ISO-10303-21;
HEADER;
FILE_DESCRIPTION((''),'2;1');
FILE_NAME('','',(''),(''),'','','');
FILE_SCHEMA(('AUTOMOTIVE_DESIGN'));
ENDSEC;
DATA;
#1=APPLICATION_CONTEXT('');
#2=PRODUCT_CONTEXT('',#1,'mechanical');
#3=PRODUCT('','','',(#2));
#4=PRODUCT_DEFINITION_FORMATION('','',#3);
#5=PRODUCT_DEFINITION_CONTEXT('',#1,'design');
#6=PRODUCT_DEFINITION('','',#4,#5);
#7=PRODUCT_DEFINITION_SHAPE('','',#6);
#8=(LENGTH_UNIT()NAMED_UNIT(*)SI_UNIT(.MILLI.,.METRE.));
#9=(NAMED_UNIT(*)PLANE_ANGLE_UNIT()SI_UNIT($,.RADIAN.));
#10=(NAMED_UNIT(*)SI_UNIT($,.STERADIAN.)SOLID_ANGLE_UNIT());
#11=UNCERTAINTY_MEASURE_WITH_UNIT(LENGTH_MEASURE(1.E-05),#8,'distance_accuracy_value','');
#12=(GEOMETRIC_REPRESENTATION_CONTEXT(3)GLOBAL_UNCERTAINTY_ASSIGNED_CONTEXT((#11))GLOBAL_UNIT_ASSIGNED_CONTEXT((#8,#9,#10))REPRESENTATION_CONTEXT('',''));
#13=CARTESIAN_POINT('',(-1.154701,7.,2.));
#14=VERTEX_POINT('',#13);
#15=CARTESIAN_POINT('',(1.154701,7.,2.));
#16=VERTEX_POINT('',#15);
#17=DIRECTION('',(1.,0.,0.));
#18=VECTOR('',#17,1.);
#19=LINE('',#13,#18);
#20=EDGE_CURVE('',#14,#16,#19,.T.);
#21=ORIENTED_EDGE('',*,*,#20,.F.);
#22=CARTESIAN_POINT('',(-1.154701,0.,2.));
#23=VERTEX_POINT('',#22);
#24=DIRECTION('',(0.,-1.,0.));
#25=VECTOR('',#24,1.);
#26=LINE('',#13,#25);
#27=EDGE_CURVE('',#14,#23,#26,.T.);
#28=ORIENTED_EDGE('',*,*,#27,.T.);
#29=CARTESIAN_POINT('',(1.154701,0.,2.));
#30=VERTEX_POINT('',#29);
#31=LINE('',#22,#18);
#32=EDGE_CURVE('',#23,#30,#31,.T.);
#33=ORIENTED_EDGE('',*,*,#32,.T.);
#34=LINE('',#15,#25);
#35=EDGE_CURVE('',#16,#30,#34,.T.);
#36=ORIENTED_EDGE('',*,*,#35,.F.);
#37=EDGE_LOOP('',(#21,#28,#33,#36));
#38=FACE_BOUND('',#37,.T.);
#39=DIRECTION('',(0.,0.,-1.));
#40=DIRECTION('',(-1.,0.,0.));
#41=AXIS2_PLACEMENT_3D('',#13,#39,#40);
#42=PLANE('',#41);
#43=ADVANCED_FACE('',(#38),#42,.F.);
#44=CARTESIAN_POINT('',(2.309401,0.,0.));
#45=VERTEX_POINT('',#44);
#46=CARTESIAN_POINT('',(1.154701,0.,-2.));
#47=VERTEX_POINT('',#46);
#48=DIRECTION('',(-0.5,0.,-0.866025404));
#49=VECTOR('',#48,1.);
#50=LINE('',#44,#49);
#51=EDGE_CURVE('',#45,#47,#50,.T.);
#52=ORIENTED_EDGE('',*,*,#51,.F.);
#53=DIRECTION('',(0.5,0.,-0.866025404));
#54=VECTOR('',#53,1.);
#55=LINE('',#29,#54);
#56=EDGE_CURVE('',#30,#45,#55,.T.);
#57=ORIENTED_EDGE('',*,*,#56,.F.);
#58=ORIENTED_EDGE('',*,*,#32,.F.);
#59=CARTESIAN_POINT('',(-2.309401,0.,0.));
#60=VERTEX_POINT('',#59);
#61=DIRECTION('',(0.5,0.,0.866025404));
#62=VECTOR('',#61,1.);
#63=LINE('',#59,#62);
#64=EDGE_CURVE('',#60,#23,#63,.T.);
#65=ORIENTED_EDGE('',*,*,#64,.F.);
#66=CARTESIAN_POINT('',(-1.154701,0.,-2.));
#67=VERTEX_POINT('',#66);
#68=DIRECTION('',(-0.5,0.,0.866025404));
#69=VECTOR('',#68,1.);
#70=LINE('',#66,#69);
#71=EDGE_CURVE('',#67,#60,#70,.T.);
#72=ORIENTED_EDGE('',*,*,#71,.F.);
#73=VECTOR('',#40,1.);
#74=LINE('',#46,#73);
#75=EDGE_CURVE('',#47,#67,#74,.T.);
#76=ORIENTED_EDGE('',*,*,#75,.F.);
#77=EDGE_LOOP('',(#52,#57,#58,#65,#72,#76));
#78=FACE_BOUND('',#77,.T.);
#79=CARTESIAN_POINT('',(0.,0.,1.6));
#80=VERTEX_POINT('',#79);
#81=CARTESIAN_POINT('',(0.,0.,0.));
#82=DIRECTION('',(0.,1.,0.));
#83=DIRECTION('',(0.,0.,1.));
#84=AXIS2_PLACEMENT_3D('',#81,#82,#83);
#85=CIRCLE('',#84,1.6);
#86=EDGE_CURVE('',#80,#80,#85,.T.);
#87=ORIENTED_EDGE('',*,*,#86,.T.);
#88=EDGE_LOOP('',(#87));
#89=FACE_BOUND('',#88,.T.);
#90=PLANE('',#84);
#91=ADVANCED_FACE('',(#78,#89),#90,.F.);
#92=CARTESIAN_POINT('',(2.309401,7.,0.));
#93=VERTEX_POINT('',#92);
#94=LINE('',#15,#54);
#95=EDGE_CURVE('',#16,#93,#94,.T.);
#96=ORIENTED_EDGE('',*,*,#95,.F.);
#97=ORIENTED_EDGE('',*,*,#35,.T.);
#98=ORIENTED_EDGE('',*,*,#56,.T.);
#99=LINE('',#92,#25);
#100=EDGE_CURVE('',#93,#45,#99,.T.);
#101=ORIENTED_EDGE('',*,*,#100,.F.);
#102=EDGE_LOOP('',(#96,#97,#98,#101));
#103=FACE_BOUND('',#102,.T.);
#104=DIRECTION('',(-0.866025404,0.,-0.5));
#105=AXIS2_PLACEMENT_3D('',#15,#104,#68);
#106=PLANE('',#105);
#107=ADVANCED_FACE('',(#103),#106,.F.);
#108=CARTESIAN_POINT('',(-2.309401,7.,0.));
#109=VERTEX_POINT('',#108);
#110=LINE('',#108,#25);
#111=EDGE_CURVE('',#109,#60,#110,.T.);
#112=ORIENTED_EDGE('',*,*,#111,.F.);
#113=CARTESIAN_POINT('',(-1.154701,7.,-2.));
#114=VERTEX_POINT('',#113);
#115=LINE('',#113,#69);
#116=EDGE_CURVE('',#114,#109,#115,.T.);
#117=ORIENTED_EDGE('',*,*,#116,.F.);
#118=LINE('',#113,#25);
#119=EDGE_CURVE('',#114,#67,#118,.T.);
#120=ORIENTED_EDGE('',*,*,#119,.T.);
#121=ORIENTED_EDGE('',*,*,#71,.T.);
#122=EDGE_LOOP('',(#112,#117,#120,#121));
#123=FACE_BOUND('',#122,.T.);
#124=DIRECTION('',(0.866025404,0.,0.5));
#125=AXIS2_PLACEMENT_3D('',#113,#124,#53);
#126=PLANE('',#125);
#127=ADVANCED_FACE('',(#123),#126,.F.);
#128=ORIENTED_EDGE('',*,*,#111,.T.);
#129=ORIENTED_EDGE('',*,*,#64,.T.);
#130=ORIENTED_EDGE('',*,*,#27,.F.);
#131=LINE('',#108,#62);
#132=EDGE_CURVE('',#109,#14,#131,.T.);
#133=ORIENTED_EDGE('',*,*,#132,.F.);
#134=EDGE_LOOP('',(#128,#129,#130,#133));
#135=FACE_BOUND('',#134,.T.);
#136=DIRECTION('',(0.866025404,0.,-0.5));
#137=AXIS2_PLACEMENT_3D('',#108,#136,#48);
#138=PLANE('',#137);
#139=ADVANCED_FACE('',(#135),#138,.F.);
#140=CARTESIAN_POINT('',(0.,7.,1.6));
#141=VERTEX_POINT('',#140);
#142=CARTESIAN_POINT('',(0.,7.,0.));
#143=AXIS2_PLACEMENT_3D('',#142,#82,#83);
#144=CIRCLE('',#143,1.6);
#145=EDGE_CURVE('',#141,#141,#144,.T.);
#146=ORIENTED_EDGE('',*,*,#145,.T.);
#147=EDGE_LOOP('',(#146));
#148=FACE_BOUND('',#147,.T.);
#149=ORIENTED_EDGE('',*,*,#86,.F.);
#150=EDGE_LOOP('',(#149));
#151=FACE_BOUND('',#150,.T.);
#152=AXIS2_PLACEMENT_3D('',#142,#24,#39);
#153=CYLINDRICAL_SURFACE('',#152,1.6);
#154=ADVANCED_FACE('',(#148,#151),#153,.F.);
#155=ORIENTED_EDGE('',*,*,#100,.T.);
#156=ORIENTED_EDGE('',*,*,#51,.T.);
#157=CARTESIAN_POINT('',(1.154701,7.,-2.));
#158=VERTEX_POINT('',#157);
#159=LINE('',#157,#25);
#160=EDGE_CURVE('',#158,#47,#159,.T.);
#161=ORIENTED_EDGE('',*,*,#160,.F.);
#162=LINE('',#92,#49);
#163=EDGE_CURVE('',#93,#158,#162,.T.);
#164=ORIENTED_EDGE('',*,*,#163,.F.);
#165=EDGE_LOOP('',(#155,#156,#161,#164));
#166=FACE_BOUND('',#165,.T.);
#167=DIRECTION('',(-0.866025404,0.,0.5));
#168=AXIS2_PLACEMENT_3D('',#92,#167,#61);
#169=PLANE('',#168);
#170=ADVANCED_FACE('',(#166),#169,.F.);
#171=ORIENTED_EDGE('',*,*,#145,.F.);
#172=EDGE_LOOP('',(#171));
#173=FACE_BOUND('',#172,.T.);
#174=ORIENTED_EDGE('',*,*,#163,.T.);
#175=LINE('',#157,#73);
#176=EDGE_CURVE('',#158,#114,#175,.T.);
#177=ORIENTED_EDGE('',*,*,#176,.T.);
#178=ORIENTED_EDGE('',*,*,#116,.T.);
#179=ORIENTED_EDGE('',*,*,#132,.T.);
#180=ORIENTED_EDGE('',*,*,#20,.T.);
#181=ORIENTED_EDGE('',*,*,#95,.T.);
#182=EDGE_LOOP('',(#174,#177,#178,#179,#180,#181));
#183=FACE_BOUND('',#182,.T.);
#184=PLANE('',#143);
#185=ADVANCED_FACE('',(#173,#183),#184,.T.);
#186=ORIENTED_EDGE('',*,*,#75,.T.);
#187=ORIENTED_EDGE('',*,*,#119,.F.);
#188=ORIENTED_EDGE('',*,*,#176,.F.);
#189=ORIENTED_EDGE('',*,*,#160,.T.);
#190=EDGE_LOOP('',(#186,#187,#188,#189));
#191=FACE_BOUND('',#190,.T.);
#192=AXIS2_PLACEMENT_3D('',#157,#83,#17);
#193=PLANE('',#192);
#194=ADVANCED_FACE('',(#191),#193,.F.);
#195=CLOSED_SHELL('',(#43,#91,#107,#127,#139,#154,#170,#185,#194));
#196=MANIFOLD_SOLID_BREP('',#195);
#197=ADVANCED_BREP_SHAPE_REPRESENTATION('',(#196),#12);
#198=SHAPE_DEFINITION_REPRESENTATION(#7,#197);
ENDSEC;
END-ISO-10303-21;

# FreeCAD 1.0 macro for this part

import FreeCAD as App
import Part
import Sketcher

V = App.Vector
Q = App.Units.Quantity

doc = App.newDocument("Part")
params = doc.addObject("Spreadsheet::Sheet", "Params")
for row, (alias, value) in enumerate([
    ("sketch1_diameter", "3.2 mm"),
    ("pad1_length", "7 mm"),
], start=1):
    params.set(f"A{row}", alias)
    params.set(f"B{row}", "=" + value)
    params.setAlias(f"B{row}", alias)

body = doc.addObject("PartDesign::Body", "Body")

sketch1 = doc.addObject("Sketcher::SketchObject", "Sketch")
body.addObject(sketch1)
sketch1.AttachmentSupport = (doc.XZ_Plane, [""])
sketch1.MapMode = "FlatFace"
sketch1.addGeometry(Part.LineSegment(V(2.3, 0, 0), V(1.2, -2, 0)), False)
sketch1.addGeometry(Part.LineSegment(V(1.2, -2, 0), V(-1.2, -2, 0)), False)
sketch1.addGeometry(Part.LineSegment(V(-1.2, -2, 0), V(-2.3, 0, 0)), False)
sketch1.addGeometry(Part.LineSegment(V(-2.3, 0, 0), V(-1.2, 2, 0)), False)
sketch1.addGeometry(Part.LineSegment(V(-1.2, 2, 0), V(1.2, 2, 0)), False)
sketch1.addGeometry(Part.LineSegment(V(1.2, 2, 0), V(2.3, 0, 0)), False)
sketch1.addGeometry(Part.Circle(V(0, 0, 0), V(0, 0, 1), 1.6), False)
sketch1.addConstraint(Sketcher.Constraint("Coincident", 0, 2, 1, 1))
sketch1.addConstraint(Sketcher.Constraint("Coincident", 1, 2, 2, 1))
sketch1.addConstraint(Sketcher.Constraint("Coincident", 2, 2, 3, 1))
sketch1.addConstraint(Sketcher.Constraint("Coincident", 3, 2, 4, 1))
sketch1.addConstraint(Sketcher.Constraint("Coincident", 4, 2, 5, 1))
sketch1.addConstraint(Sketcher.Constraint("Coincident", 5, 2, 0, 1))
sketch1.addConstraint(Sketcher.Constraint("Horizontal", 1))
sketch1.addConstraint(Sketcher.Constraint("Horizontal", 4))
sketch1.addConstraint(Sketcher.Constraint("Coincident", 6, 3, -1, 1))
sketch1.addConstraint(Sketcher.Constraint("Symmetric", 0, 2, 3, 2, -1, 1))
sketch1.addConstraint(Sketcher.Constraint("Symmetric", 2, 2, 5, 2, -1, 1))
sketch1.addConstraint(Sketcher.Constraint("PointOnObject", 2, 2, -1))
sketch1.addConstraint(Sketcher.Constraint("Parallel", 2, 5))
sketch1.addConstraint(Sketcher.Constraint("Vertical", 1, 2, 3, 2))
sketch1.addConstraint(Sketcher.Constraint("Diameter", 6, 3.2))
sketch1.addConstraint(Sketcher.Constraint("Angle", 0, Q("-120 deg")))
sketch1.addConstraint(Sketcher.Constraint("DistanceY", 0, 2, -1, 1, 2.0))
sketch1.addConstraint(Sketcher.Constraint("DistanceX", 1, 2, 1, 1, 2.309401))
sketch1.setExpression("Constraints[14]", "Params.sketch1_diameter")
pad1 = doc.addObject("PartDesign::Pad", "Pad")
body.addObject(pad1)
pad1.Profile = sketch1
pad1.setExpression("Length", "Params.pad1_length")
pad1.Reversed = True

doc.recompute()
